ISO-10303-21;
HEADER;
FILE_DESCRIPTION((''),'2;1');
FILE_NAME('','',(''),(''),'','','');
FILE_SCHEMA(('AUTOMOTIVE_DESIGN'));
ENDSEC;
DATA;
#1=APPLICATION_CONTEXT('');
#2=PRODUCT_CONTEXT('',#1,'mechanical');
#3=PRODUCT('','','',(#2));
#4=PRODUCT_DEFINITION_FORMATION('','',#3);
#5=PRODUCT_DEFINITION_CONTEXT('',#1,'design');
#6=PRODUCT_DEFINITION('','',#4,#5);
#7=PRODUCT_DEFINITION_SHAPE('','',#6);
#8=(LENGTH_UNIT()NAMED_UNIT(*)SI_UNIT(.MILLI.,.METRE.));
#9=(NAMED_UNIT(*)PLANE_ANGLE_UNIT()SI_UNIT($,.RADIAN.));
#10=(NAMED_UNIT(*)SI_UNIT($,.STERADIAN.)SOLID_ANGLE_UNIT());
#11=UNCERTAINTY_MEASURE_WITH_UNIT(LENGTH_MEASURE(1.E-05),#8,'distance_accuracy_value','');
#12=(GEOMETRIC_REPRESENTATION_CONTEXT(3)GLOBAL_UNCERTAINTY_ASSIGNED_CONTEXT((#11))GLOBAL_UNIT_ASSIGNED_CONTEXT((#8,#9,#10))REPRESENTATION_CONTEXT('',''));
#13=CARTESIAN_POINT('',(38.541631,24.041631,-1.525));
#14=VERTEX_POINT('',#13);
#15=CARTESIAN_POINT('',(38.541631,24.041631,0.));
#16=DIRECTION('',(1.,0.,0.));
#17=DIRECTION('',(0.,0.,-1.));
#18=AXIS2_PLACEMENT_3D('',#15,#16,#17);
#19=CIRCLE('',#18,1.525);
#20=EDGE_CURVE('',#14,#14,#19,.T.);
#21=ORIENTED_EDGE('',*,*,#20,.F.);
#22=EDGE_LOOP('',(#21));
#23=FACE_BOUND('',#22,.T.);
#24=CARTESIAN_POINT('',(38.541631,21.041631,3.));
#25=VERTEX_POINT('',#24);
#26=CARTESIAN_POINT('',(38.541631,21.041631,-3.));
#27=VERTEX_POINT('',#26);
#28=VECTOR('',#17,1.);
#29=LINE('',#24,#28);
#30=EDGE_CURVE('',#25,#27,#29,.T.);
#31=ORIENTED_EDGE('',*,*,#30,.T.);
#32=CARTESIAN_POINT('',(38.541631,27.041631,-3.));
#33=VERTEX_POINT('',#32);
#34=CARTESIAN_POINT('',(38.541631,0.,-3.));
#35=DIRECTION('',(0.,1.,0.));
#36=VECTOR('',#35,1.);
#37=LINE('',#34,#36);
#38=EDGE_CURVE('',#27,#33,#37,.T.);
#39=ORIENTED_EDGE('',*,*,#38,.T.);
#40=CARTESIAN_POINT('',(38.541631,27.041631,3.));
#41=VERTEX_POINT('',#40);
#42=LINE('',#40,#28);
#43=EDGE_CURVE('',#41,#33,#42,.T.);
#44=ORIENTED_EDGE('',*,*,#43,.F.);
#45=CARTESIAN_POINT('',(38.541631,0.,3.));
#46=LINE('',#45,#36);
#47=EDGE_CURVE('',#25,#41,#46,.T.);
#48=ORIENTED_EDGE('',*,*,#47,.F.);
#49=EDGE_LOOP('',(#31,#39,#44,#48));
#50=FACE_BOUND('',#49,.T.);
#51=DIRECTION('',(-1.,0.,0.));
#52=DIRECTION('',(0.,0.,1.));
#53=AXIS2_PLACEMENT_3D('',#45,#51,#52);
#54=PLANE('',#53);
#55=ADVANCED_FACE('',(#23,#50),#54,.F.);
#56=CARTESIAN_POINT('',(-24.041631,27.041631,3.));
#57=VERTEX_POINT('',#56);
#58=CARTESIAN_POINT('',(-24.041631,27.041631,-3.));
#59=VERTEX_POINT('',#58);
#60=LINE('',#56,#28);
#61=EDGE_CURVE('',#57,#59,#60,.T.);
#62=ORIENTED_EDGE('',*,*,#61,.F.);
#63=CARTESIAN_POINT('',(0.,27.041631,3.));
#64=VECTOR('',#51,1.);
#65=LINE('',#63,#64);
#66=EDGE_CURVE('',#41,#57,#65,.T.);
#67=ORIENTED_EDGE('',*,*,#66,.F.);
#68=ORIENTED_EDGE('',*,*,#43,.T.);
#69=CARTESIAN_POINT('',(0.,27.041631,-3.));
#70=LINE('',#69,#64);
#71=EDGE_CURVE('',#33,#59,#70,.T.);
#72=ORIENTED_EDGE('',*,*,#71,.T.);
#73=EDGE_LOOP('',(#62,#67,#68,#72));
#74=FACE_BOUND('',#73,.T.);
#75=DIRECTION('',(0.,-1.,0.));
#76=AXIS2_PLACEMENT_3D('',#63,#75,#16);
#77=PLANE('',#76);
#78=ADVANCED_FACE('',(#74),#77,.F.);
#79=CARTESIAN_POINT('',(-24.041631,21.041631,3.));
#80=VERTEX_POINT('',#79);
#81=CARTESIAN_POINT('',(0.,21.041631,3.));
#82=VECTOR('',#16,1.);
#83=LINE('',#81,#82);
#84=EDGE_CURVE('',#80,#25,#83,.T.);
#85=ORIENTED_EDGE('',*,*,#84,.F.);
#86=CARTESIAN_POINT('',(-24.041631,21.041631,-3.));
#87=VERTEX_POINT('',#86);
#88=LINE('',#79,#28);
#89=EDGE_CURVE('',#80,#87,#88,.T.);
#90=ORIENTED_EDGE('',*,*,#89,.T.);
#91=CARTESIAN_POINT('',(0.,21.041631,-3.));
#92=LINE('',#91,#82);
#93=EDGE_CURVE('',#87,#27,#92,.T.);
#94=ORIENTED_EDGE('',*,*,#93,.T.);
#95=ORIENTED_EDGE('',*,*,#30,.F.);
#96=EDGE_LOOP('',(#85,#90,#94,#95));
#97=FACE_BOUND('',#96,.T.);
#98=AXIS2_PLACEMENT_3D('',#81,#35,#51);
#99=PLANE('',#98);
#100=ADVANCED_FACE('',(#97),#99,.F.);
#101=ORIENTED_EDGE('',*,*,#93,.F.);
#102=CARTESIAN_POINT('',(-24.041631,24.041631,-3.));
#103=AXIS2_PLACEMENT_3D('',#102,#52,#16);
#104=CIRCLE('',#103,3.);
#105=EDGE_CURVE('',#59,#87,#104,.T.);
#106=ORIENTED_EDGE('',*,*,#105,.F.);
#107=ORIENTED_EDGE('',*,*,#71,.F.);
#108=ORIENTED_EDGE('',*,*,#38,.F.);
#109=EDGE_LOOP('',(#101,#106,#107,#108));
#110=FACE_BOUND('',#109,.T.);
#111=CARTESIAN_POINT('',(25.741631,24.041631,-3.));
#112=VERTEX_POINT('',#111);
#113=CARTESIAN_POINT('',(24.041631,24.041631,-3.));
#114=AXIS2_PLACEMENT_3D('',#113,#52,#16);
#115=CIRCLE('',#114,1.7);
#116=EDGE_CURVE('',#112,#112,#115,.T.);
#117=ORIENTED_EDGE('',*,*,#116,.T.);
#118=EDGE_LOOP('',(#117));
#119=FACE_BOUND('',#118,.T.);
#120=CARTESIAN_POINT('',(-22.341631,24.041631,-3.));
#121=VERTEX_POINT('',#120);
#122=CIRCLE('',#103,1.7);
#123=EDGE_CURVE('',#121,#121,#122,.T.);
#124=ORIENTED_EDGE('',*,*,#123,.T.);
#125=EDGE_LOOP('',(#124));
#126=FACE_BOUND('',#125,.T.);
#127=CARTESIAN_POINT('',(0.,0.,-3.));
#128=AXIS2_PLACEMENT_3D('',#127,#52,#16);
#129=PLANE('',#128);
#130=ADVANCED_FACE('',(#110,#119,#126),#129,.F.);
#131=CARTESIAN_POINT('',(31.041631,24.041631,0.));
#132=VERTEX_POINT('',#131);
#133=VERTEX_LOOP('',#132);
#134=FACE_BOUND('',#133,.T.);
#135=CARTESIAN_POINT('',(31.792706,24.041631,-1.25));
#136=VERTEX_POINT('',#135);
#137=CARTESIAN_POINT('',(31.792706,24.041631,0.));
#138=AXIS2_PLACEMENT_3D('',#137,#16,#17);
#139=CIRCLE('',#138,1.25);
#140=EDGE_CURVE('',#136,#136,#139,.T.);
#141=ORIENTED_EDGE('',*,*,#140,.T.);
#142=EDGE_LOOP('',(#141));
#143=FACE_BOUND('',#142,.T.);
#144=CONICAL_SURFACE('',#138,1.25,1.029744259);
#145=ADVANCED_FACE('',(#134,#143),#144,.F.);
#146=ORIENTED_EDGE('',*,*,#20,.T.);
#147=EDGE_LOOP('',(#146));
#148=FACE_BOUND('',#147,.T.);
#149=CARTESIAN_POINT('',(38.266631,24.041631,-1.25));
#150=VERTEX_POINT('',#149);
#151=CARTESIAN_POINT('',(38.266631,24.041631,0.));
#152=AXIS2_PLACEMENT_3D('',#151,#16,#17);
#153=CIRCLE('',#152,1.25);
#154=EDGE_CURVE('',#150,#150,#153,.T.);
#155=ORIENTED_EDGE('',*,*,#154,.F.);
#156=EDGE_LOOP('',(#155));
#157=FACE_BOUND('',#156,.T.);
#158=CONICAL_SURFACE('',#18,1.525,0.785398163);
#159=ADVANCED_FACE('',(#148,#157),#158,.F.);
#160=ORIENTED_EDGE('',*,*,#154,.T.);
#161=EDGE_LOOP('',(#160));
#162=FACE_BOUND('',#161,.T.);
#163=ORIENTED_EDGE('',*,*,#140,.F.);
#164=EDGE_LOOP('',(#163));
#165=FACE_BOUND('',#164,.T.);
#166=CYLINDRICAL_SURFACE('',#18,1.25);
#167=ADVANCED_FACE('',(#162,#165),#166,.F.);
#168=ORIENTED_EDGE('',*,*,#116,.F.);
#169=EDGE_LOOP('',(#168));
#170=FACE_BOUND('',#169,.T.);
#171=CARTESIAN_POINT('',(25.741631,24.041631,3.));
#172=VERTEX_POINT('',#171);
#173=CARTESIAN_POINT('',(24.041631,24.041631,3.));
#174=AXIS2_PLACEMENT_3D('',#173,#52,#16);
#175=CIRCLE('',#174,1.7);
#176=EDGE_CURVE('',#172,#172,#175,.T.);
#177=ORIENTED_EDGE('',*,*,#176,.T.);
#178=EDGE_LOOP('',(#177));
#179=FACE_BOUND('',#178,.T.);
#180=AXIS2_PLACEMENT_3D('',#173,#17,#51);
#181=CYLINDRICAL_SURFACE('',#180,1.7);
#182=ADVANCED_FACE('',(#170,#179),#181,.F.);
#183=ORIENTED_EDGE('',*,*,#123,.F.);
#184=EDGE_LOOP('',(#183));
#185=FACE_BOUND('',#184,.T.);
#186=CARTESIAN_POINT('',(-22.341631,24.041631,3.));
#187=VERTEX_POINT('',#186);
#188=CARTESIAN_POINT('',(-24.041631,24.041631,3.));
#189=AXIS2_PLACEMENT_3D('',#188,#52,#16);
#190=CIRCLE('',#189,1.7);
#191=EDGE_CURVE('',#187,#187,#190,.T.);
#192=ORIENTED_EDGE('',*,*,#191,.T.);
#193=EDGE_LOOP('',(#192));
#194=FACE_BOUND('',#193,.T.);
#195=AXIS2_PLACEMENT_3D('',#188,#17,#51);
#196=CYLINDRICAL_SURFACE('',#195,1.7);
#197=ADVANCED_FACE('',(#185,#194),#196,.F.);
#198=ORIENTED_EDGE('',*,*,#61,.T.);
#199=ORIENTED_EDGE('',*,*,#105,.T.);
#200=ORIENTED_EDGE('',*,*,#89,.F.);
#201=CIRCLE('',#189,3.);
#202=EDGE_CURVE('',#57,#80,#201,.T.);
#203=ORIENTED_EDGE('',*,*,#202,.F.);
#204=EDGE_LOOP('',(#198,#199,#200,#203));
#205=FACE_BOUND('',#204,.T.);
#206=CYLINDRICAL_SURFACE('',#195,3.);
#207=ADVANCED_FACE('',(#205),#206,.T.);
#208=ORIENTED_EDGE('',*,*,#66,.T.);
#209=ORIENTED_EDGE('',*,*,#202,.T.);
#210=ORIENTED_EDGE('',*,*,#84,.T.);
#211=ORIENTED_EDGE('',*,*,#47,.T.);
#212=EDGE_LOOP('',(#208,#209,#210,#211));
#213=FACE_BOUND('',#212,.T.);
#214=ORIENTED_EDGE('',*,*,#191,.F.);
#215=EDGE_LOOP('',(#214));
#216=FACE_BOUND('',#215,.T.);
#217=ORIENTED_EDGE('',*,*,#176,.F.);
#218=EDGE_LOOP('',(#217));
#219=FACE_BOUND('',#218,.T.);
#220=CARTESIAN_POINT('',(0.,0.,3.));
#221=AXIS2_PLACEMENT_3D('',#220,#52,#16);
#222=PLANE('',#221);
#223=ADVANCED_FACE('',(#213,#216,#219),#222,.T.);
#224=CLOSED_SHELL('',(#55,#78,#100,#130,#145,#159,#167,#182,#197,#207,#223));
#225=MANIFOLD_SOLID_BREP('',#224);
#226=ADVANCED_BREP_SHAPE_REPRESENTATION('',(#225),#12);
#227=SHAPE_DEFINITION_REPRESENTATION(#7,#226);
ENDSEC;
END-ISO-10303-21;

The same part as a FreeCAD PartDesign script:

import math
import FreeCAD as App
import Part
import Sketcher
from FreeCAD import Vector

doc = App.newDocument("Part")
params = doc.addObject("Spreadsheet::Sheet", "Params")
for row, (alias, value) in enumerate([
    ("sketch1_radius", "3 mm"),
    ("sketch1_diameter", "3.4 mm"),
    ("pad1_length", "6 mm"),
    ("sketch2_diameter", "2.5 mm"),
    ("hole_diameter", "2.5 mm"),
    ("hole_depth", "6.748924 mm"),
    ("hole_csink_diameter", "3.05 mm"),
], start=1):
    params.set(f"A{row}", alias)
    params.set(f"B{row}", "=" + value)
    params.setAlias(f"B{row}", alias)

body = doc.addObject("PartDesign::Body", "Body")

sketch1 = body.newObject("Sketcher::SketchObject", "Sketch")
sketch1.AttachmentSupport = (doc.getObject("XY_Plane"), [""])
sketch1.MapMode = "FlatFace"
sketch1.addGeometry([
    Part.LineSegment(Vector(38.5, 21, 0), Vector(38.5, 27, 0)),
    Part.LineSegment(Vector(38.5, 27, 0), Vector(-24, 27, 0)),
    Part.ArcOfCircle(Part.Circle(Vector(-24, 24, 0), Vector(0, 0, 1), 3), math.radians(90), math.radians(201)),
    Part.ArcOfCircle(Part.Circle(Vector(-24, 24, 0), Vector(0, 0, 1), 3), math.radians(-159), math.radians(-90)),
    Part.LineSegment(Vector(-24, 21, 0), Vector(38.5, 21, 0)),
    Part.Circle(Vector(-24, 24, 0), Vector(0, 0, 1), 1.7),
    Part.Circle(Vector(24, 24, 0), Vector(0, 0, 1), 1.7),
], False)
sketch1.addConstraint([
    Sketcher.Constraint("Coincident", 0, 2, 1, 1),
    Sketcher.Constraint("Tangent", 1, 2, 2, 1),
    Sketcher.Constraint("Tangent", 2, 2, 3, 1),
    Sketcher.Constraint("Tangent", 3, 2, 4, 1),
    Sketcher.Constraint("Coincident", 4, 2, 0, 1),
    Sketcher.Constraint("Vertical", 0),
    Sketcher.Constraint("Horizontal", 1),
    Sketcher.Constraint("Horizontal", 4),
    Sketcher.Constraint("Coincident", 5, 3, 2, 3),
    Sketcher.Constraint("Equal", 2, 3),
    Sketcher.Constraint("Equal", 5, 6),
    Sketcher.Constraint("Symmetric", 2, 3, 6, 3, -2),
    Sketcher.Constraint("Radius", 2, 3.0),
    Sketcher.Constraint("Diameter", 5, 3.4),
    Sketcher.Constraint("DistanceX", 6, 3, 0, 2, 14.5),
    Sketcher.Constraint("DistanceX", 1, 2, 1, 1, 62.583261),
    Sketcher.Constraint("DistanceY", -1, 1, 2, 3, 24.041631),
    Sketcher.Constraint("DistanceX", 2, 2, -1, 1, 26.848254),
])
sketch1.setExpression("Constraints[12]", "Params.sketch1_radius")
sketch1.setExpression("Constraints[13]", "Params.sketch1_diameter")
pad1 = body.newObject("PartDesign::Pad", "Pad")
pad1.Profile = sketch1
pad1.setExpression("Length", "Params.pad1_length")
pad1.Midplane = True

sketch2 = body.newObject("Sketcher::SketchObject", "Sketch001")
sketch2.AttachmentSupport = (doc.getObject("YZ_Plane"), [""])
sketch2.MapMode = "FlatFace"
sketch2.AttachmentOffset = App.Placement(Vector(0, 0, 38.541631), App.Rotation())
sketch2.addGeometry(Part.Circle(Vector(24, 0, 0), Vector(0, 0, 1), 1.2), False)
sketch2.addConstraint([
    Sketcher.Constraint("PointOnObject", 0, 3, -1),
    Sketcher.Constraint("Diameter", 0, 2.5),
    Sketcher.Constraint("DistanceX", -1, 1, 0, 3, 24.041631),
])
sketch2.setExpression("Constraints[1]", "Params.sketch2_diameter")
doc.recompute()
hole = body.newObject("PartDesign::Hole", "Hole")
hole.Profile = sketch2
hole.ThreadType = "None"
hole.setExpression("Diameter", "Params.hole_diameter")
hole.DepthType = "Dimension"
hole.setExpression("Depth", "Params.hole_depth")
hole.DrillPoint = "Angled"
hole.DrillPointAngle = 118
hole.HoleCutType = "Countersink"
hole.setExpression("HoleCutDiameter", "Params.hole_csink_diameter")
hole.HoleCutCountersinkAngle = 90

doc.recompute()
